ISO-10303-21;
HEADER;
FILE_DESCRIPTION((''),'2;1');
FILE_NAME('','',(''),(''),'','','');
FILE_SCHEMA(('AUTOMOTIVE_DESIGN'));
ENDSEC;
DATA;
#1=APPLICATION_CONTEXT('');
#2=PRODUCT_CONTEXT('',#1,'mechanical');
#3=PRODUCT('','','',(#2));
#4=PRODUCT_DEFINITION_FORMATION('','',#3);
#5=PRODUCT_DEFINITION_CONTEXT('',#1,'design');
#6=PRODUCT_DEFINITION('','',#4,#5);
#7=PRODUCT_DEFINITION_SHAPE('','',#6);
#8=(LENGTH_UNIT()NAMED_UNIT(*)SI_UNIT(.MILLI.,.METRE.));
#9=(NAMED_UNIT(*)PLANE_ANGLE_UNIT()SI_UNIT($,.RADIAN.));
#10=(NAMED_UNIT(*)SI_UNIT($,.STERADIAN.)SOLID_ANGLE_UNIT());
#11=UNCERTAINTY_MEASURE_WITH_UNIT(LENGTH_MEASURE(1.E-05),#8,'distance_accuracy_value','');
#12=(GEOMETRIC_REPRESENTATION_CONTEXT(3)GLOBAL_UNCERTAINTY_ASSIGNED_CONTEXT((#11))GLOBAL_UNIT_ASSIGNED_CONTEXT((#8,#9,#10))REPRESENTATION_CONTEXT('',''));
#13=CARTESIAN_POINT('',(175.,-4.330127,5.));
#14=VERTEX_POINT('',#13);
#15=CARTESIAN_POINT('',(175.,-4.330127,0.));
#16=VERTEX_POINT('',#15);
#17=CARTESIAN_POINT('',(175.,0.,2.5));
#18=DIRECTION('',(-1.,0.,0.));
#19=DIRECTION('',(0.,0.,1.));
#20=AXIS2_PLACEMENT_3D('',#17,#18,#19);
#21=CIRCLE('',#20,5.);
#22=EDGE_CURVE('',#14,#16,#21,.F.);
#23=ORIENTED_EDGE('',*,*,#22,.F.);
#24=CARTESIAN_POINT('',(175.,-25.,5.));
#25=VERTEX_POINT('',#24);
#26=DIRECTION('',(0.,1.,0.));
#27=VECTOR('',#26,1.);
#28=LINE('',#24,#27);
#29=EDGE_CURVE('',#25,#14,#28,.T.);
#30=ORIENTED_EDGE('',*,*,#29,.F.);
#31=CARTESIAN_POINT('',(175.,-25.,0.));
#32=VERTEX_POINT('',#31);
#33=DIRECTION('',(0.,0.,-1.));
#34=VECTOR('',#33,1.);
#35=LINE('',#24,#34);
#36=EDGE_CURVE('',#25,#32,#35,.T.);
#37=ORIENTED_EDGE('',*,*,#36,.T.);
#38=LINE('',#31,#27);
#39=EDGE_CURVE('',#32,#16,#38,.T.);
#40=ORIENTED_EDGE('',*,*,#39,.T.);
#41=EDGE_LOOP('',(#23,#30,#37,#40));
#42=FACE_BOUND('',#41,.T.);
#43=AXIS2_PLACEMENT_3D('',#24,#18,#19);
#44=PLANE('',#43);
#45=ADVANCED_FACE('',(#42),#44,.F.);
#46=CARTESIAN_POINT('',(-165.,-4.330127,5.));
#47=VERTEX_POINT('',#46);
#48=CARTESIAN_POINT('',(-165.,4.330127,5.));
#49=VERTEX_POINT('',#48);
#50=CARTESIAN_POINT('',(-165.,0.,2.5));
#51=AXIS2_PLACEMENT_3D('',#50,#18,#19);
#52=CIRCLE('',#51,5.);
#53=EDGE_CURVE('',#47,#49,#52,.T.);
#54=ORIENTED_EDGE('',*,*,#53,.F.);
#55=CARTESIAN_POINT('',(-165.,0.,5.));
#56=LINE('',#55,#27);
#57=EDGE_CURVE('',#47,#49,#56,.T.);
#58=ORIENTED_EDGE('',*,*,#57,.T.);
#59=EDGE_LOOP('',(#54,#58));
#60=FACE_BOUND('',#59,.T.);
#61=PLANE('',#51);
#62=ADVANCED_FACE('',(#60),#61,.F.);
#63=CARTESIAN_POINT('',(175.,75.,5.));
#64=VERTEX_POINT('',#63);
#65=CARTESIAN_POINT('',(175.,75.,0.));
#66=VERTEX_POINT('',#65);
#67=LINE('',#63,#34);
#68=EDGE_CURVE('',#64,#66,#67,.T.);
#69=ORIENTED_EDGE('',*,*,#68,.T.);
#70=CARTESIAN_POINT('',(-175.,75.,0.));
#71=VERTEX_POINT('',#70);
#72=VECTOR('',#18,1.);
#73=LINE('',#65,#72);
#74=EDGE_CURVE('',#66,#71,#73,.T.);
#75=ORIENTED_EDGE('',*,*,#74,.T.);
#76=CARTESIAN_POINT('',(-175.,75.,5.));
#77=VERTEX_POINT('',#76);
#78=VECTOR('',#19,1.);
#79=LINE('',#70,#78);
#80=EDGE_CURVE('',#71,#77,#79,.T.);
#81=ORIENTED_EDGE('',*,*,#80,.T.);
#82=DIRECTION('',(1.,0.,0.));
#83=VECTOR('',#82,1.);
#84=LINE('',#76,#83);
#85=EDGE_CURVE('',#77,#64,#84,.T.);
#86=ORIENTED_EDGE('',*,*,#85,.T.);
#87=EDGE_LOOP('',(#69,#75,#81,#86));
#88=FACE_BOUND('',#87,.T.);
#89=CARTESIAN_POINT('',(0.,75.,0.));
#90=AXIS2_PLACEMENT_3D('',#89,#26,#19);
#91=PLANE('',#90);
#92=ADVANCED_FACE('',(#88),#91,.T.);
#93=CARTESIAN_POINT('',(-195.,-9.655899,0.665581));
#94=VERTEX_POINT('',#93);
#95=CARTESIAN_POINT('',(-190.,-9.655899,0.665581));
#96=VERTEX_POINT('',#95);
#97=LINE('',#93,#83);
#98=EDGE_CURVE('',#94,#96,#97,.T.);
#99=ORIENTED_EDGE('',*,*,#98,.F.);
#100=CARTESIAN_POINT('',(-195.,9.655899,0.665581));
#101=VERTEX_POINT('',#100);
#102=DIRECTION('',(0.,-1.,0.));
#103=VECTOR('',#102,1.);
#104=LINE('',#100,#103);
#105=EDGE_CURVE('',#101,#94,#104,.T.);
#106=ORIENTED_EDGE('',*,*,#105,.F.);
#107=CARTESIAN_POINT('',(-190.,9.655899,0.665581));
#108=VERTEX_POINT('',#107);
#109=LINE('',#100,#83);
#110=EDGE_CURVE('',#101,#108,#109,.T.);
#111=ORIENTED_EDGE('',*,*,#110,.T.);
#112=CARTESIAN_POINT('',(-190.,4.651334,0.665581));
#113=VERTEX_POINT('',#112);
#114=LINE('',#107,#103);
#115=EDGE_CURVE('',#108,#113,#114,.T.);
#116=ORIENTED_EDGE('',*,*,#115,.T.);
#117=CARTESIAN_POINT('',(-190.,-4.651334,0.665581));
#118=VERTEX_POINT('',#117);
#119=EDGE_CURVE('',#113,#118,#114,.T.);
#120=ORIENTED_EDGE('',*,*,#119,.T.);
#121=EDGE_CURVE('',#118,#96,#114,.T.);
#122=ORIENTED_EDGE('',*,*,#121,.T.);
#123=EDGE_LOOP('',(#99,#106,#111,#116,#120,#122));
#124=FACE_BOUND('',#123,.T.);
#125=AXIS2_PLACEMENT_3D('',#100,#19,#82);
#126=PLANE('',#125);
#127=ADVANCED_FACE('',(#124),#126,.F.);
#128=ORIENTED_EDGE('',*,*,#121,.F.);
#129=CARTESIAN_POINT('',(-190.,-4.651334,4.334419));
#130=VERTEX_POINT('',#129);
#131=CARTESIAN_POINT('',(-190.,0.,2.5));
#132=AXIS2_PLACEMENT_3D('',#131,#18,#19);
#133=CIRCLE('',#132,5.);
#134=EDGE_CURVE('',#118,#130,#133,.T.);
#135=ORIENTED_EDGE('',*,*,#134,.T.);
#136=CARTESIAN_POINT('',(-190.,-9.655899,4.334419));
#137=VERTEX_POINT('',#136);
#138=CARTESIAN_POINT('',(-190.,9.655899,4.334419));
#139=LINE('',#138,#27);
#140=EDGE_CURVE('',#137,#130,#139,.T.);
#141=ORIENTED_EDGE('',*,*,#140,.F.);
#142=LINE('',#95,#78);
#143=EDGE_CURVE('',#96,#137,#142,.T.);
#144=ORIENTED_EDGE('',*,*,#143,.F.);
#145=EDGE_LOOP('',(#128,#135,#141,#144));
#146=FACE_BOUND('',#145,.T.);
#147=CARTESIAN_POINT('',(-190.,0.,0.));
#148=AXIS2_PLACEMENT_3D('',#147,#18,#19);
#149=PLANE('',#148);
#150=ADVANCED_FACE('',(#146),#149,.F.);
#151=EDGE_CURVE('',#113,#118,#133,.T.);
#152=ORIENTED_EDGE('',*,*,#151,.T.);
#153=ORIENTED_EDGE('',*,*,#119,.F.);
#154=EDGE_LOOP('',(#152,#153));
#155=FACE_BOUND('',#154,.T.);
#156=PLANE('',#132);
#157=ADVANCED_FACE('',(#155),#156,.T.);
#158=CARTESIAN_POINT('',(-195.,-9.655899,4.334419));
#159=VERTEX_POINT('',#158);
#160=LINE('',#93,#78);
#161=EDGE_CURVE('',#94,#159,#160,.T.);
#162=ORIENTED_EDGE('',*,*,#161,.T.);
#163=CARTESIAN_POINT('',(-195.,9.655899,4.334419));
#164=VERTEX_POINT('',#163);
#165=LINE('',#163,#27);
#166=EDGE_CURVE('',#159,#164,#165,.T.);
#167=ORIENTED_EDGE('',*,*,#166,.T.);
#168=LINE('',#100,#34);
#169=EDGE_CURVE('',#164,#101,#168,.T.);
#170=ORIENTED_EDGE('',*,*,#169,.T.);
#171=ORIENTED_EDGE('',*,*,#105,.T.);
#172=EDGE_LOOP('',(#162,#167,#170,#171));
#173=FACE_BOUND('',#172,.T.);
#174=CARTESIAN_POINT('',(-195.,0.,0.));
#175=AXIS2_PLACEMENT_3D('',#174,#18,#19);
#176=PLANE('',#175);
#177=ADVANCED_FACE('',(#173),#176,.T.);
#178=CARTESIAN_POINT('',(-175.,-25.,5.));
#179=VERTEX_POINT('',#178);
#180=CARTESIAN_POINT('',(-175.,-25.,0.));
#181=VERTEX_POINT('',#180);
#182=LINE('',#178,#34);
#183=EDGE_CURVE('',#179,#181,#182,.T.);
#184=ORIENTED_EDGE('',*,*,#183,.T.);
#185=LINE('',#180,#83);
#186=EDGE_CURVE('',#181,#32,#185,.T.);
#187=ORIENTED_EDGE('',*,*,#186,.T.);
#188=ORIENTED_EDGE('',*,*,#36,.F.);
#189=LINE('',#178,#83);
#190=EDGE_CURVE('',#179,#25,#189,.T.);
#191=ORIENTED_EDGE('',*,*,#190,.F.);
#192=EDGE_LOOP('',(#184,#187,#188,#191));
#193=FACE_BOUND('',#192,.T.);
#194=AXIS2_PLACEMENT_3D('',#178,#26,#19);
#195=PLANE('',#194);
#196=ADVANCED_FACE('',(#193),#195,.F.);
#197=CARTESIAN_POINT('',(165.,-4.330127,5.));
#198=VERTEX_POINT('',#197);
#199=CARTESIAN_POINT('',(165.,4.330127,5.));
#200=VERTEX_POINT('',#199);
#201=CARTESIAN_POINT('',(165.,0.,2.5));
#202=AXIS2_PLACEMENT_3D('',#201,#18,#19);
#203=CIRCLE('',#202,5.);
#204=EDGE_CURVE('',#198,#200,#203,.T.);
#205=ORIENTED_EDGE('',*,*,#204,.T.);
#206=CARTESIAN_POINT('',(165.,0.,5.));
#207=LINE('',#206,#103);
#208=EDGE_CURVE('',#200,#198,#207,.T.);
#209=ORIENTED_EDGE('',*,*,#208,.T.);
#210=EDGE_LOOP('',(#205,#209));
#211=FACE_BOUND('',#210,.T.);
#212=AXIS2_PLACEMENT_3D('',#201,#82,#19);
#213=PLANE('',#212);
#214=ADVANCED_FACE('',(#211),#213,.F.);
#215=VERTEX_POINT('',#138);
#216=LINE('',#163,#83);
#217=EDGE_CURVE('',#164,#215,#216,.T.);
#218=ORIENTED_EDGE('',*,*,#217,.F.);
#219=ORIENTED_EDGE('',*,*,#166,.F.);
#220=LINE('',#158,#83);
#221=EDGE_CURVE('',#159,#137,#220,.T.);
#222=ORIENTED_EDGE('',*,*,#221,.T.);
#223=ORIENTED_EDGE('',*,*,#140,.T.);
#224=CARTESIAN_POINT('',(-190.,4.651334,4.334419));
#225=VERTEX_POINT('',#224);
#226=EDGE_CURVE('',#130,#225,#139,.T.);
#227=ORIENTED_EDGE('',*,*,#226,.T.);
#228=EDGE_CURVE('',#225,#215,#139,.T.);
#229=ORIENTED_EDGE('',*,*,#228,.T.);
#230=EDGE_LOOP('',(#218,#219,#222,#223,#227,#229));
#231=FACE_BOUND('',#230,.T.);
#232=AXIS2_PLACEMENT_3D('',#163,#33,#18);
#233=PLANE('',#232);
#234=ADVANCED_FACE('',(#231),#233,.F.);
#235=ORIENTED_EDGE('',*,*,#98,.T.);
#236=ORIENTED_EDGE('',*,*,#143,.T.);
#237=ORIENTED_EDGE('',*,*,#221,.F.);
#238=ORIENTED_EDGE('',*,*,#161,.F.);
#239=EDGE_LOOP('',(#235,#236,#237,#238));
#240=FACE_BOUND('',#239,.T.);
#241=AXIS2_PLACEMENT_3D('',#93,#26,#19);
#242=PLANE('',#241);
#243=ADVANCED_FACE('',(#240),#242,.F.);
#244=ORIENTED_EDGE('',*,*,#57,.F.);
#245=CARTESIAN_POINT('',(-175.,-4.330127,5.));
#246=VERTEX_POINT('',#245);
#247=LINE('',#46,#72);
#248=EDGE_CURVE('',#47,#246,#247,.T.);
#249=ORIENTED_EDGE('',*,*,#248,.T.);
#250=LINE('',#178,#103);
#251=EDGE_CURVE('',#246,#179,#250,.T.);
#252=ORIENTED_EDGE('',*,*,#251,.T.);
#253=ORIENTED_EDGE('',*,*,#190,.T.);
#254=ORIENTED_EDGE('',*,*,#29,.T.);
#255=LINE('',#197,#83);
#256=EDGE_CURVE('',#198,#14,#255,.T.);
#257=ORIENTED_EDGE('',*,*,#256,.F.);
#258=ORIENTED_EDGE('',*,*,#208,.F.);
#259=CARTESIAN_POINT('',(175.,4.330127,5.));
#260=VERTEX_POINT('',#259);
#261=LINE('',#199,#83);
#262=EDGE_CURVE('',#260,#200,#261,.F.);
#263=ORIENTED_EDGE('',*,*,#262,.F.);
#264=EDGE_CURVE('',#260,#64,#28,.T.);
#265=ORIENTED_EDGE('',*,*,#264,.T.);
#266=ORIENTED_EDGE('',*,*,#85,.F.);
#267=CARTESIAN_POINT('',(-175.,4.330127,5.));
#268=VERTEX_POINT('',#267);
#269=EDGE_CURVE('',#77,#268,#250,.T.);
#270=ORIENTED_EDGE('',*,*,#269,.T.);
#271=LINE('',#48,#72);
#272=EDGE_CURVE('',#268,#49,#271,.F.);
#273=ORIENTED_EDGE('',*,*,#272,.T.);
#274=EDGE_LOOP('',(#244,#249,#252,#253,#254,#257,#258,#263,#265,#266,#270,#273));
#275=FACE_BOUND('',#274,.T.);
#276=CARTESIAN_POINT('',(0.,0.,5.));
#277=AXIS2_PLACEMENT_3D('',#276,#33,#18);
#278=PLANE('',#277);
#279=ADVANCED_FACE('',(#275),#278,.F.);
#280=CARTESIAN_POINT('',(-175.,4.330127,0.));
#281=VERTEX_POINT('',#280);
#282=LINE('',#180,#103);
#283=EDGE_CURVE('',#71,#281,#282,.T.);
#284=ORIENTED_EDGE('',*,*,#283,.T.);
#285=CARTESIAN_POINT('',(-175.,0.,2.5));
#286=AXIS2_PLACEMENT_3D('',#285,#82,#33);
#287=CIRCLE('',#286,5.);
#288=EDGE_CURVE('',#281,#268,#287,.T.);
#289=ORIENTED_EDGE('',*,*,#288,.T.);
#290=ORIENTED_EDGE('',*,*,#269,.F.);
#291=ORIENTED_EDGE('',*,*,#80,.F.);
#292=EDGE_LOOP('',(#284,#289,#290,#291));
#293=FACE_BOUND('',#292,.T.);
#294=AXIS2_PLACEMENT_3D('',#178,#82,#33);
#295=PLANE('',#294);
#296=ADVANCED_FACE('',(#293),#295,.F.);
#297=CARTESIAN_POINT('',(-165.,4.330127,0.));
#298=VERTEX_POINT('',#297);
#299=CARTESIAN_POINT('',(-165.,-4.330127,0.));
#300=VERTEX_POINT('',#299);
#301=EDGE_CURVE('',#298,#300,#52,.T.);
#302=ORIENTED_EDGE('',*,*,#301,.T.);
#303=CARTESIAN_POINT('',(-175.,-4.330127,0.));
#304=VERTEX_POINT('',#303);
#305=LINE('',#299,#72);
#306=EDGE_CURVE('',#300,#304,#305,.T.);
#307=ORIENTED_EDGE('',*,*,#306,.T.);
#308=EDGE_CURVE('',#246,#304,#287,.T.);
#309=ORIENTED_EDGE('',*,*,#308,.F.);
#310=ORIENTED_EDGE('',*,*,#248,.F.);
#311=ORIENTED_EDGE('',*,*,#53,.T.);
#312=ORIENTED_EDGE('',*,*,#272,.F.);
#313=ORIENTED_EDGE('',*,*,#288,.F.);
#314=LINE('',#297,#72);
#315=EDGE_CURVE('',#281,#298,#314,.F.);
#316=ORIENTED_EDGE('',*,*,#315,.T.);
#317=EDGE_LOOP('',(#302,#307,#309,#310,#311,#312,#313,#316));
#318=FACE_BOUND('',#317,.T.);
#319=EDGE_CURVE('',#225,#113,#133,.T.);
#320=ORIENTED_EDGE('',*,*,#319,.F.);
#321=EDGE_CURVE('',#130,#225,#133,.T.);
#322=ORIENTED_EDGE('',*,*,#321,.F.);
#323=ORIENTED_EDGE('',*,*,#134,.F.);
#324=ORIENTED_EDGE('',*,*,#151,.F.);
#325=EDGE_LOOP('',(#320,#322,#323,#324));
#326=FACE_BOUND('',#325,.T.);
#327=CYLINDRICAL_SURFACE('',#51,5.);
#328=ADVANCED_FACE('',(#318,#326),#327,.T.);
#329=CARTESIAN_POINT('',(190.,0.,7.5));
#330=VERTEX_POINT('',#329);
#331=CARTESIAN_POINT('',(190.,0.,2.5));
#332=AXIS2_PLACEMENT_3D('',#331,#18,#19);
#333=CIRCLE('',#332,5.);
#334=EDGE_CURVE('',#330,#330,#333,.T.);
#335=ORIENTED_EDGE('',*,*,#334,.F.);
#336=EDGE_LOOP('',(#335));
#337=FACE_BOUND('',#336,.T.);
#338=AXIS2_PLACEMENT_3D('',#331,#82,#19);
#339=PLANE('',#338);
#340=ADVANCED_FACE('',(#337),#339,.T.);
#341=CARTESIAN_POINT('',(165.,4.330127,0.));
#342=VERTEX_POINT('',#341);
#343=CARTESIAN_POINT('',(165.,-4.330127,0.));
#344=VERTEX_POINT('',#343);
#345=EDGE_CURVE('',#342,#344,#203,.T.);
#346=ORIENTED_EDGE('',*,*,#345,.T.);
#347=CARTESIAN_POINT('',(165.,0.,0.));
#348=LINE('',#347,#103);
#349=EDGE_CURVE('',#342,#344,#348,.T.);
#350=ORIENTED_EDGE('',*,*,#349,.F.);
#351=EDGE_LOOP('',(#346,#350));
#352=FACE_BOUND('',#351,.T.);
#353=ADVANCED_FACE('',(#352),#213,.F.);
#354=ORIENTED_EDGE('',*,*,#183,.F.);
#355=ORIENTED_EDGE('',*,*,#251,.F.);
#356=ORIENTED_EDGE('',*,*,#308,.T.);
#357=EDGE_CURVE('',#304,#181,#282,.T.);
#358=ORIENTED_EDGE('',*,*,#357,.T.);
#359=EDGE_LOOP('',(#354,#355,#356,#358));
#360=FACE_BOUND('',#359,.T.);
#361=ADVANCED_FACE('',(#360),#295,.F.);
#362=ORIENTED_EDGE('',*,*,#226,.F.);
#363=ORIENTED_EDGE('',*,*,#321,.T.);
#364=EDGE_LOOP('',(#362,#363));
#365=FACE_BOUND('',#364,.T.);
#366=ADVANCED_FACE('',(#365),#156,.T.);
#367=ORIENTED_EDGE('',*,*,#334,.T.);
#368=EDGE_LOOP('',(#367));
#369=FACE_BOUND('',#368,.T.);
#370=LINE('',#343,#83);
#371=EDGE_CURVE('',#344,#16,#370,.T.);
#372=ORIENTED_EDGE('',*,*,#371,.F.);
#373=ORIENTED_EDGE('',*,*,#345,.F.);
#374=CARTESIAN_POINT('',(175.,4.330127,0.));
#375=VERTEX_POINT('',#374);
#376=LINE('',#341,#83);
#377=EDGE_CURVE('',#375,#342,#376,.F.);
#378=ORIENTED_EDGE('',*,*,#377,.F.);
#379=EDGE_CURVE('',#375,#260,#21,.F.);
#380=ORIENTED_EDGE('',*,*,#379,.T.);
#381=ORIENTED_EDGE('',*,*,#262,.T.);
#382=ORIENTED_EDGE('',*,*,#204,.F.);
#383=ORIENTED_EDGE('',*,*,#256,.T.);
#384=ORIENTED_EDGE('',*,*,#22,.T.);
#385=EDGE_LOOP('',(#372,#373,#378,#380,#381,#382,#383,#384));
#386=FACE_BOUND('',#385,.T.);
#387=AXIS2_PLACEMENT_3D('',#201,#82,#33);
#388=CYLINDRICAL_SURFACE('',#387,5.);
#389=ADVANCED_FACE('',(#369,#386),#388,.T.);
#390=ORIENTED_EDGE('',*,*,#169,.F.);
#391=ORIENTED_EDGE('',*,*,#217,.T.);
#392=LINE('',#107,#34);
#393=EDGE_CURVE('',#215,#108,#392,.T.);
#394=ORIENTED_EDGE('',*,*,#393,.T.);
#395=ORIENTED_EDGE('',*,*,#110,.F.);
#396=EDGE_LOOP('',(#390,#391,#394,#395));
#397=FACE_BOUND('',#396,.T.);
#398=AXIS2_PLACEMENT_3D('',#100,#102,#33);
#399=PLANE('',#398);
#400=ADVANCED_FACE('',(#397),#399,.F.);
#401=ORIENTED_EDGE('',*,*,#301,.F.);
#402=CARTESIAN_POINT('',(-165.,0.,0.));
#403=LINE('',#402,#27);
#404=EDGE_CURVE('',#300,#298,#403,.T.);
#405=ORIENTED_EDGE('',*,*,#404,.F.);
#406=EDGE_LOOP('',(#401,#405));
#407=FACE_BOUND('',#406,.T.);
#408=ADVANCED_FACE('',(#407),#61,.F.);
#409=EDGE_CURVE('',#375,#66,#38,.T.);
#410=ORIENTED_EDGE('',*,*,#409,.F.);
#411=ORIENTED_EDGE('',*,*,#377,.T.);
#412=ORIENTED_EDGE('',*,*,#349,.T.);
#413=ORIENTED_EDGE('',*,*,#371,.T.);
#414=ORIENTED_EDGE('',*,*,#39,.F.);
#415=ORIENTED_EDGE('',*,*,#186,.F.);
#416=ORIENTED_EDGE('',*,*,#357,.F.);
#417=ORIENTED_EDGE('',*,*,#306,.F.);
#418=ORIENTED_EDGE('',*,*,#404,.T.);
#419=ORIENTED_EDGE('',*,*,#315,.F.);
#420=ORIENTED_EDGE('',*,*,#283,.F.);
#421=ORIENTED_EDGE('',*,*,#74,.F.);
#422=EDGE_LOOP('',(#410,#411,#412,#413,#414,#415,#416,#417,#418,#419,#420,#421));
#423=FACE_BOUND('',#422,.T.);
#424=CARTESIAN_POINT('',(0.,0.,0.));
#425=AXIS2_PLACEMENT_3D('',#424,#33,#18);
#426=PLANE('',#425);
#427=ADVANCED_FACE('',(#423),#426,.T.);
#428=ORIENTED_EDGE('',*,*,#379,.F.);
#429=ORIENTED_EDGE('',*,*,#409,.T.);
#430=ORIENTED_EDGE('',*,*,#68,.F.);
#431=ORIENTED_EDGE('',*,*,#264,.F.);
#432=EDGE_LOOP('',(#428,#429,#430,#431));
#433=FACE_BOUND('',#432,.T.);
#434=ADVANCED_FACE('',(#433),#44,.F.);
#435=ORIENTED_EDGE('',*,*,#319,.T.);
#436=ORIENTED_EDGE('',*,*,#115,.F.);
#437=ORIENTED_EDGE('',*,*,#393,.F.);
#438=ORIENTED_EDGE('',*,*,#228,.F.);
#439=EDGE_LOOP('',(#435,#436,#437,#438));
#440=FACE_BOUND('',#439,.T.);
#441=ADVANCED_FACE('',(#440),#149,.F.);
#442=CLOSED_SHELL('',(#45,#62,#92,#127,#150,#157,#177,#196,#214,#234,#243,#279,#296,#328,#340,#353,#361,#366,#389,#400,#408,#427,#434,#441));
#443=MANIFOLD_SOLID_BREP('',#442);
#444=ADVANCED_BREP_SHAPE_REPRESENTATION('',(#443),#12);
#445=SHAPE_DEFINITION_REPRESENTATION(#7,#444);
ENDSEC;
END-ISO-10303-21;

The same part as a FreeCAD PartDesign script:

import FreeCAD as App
import Part
import Sketcher

V = App.Vector

doc = App.newDocument("Part")
body = doc.addObject("PartDesign::Body", "Body")

sketch1 = doc.addObject("Sketcher::SketchObject", "Sketch")
body.addObject(sketch1)
sketch1.AttachmentSupport = (doc.XY_Plane, [""])
sketch1.MapMode = "FlatFace"
sketch1.addGeometry(Part.LineSegment(V(-175, 25, 0), V(-175, -25, 0)), False)
sketch1.addGeometry(Part.LineSegment(V(-175, -25, 0), V(175, -25, 0)), False)
sketch1.addGeometry(Part.LineSegment(V(175, -25, 0), V(175, 25, 0)), False)
sketch1.addGeometry(Part.LineSegment(V(175, 25, 0), V(-175, 25, 0)), False)
sketch1.addConstraint(Sketcher.Constraint("Coincident", 0, 2, 1, 1))
sketch1.addConstraint(Sketcher.Constraint("Coincident", 1, 2, 2, 1))
sketch1.addConstraint(Sketcher.Constraint("Coincident", 2, 2, 3, 1))
sketch1.addConstraint(Sketcher.Constraint("Coincident", 3, 2, 0, 1))
sketch1.addConstraint(Sketcher.Constraint("Vertical", 0))
sketch1.addConstraint(Sketcher.Constraint("Horizontal", 1))
sketch1.addConstraint(Sketcher.Constraint("Vertical", 2))
sketch1.addConstraint(Sketcher.Constraint("Horizontal", 3))
sketch1.addConstraint(Sketcher.Constraint("Symmetric", 0, 2, 2, 2, -1, 1))
sketch1.addConstraint(Sketcher.Constraint("DistanceX", 1, 1, 1, 2, 350.0))
sketch1.addConstraint(Sketcher.Constraint("DistanceY", 0, 2, 0, 1, 50.0))
pad1 = doc.addObject("PartDesign::Pad", "Pad")
body.addObject(pad1)
pad1.Profile = sketch1
pad1.Length = 5

sketch2 = doc.addObject("Sketcher::SketchObject", "Sketch001")
body.addObject(sketch2)
sketch2.AttachmentSupport = (doc.YZ_Plane, [""])
sketch2.MapMode = "FlatFace"
sketch2.AttachmentOffset = App.Placement(V(0, 0, -165), App.Rotation())
sketch2.addGeometry(Part.Circle(V(0, 2, 0), V(0, 0, 1), 5), False)
sketch2.addConstraint(Sketcher.Constraint("PointOnObject", 0, 3, -2))
sketch2.addConstraint(Sketcher.Constraint("Diameter", 0, 10.0))
sketch2.addConstraint(Sketcher.Constraint("DistanceY", -1, 1, 0, 3, 2.5))
pad2 = doc.addObject("PartDesign::Pad", "Pad001")
body.addObject(pad2)
pad2.Profile = sketch2
pad2.Length = 25
pad2.Reversed = True
doc.recompute()

mirrored = doc.addObject("PartDesign::Mirrored", "Mirrored")
body.addObject(mirrored)
mirrored.Originals = [pad2]
mirrored.MirrorPlane = (doc.YZ_Plane, [""])
body.Tip = mirrored

sketch3 = doc.addObject("Sketcher::SketchObject", "Sketch002")
body.addObject(sketch3)
sketch3.AttachmentSupport = (doc.XZ_Plane, [""])
sketch3.MapMode = "FlatFace"
sketch3.AttachmentOffset = App.Placement(V(0, 0, -25), App.Rotation())
sketch3.addGeometry(Part.LineSegment(V(-175, 0, 0), V(-175, 5, 0)), False)
sketch3.addGeometry(Part.LineSegment(V(-175, 5, 0), V(175, 5, 0)), False)
sketch3.addGeometry(Part.LineSegment(V(175, 5, 0), V(175, 0, 0)), False)
sketch3.addGeometry(Part.LineSegment(V(175, 0, 0), V(-175, 0, 0)), False)
sketch3.addConstraint(Sketcher.Constraint("Coincident", 0, 2, 1, 1))
sketch3.addConstraint(Sketcher.Constraint("Coincident", 1, 2, 2, 1))
sketch3.addConstraint(Sketcher.Constraint("Coincident", 2, 2, 3, 1))
sketch3.addConstraint(Sketcher.Constraint("Coincident", 3, 2, 0, 1))
sketch3.addConstraint(Sketcher.Constraint("Vertical", 0))
sketch3.addConstraint(Sketcher.Constraint("Horizontal", 1))
sketch3.addConstraint(Sketcher.Constraint("Vertical", 2))
sketch3.addConstraint(Sketcher.Constraint("Horizontal", 3))
sketch3.addConstraint(Sketcher.Constraint("Symmetric", 2, 2, 3, 2, -1, 1))
sketch3.addConstraint(Sketcher.Constraint("DistanceX", 1, 1, 1, 2, 350.0))
sketch3.addConstraint(Sketcher.Constraint("DistanceY", 0, 1, 0, 2, 5.0))
pad3 = doc.addObject("PartDesign::Pad", "Pad002")
body.addObject(pad3)
pad3.Profile = sketch3
pad3.Length = 50
pad3.Reversed = True

sketch4 = doc.addObject("Sketcher::SketchObject", "Sketch003")
body.addObject(sketch4)
sketch4.AttachmentSupport = (doc.YZ_Plane, [""])
sketch4.MapMode = "FlatFace"
sketch4.AttachmentOffset = App.Placement(V(0, 0, -190), App.Rotation())
sketch4.addGeometry(Part.LineSegment(V(9.7, 0.7, 0), V(-9.7, 0.7, 0)), False)
sketch4.addGeometry(Part.LineSegment(V(-9.7, 0.7, 0), V(-9.7, 4.3, 0)), False)
sketch4.addGeometry(Part.LineSegment(V(-9.7, 4.3, 0), V(9.7, 4.3, 0)), False)
sketch4.addGeometry(Part.LineSegment(V(9.7, 4.3, 0), V(9.7, 0.7, 0)), False)
sketch4.addConstraint(Sketcher.Constraint("Coincident", 0, 2, 1, 1))
sketch4.addConstraint(Sketcher.Constraint("Coincident", 1, 2, 2, 1))
sketch4.addConstraint(Sketcher.Constraint("Coincident", 2, 2, 3, 1))
sketch4.addConstraint(Sketcher.Constraint("Coincident", 3, 2, 0, 1))
sketch4.addConstraint(Sketcher.Constraint("Horizontal", 0))
sketch4.addConstraint(Sketcher.Constraint("Vertical", 1))
sketch4.addConstraint(Sketcher.Constraint("Horizontal", 2))
sketch4.addConstraint(Sketcher.Constraint("Vertical", 3))
sketch4.addConstraint(Sketcher.Constraint("DistanceX", 0, 2, 0, 1, 19.311799))
sketch4.addConstraint(Sketcher.Constraint("DistanceX", 0, 2, -1, 1, 9.655899))
sketch4.addConstraint(Sketcher.Constraint("DistanceY", 1, 1, 1, 2, 3.668838))
sketch4.addConstraint(Sketcher.Constraint("DistanceY", -1, 1, 0, 2, 0.665581))
pad4 = doc.addObject("PartDesign::Pad", "Pad003")
body.addObject(pad4)
pad4.Profile = sketch4
pad4.Length = 5
pad4.Reversed = True

doc.recompute()
